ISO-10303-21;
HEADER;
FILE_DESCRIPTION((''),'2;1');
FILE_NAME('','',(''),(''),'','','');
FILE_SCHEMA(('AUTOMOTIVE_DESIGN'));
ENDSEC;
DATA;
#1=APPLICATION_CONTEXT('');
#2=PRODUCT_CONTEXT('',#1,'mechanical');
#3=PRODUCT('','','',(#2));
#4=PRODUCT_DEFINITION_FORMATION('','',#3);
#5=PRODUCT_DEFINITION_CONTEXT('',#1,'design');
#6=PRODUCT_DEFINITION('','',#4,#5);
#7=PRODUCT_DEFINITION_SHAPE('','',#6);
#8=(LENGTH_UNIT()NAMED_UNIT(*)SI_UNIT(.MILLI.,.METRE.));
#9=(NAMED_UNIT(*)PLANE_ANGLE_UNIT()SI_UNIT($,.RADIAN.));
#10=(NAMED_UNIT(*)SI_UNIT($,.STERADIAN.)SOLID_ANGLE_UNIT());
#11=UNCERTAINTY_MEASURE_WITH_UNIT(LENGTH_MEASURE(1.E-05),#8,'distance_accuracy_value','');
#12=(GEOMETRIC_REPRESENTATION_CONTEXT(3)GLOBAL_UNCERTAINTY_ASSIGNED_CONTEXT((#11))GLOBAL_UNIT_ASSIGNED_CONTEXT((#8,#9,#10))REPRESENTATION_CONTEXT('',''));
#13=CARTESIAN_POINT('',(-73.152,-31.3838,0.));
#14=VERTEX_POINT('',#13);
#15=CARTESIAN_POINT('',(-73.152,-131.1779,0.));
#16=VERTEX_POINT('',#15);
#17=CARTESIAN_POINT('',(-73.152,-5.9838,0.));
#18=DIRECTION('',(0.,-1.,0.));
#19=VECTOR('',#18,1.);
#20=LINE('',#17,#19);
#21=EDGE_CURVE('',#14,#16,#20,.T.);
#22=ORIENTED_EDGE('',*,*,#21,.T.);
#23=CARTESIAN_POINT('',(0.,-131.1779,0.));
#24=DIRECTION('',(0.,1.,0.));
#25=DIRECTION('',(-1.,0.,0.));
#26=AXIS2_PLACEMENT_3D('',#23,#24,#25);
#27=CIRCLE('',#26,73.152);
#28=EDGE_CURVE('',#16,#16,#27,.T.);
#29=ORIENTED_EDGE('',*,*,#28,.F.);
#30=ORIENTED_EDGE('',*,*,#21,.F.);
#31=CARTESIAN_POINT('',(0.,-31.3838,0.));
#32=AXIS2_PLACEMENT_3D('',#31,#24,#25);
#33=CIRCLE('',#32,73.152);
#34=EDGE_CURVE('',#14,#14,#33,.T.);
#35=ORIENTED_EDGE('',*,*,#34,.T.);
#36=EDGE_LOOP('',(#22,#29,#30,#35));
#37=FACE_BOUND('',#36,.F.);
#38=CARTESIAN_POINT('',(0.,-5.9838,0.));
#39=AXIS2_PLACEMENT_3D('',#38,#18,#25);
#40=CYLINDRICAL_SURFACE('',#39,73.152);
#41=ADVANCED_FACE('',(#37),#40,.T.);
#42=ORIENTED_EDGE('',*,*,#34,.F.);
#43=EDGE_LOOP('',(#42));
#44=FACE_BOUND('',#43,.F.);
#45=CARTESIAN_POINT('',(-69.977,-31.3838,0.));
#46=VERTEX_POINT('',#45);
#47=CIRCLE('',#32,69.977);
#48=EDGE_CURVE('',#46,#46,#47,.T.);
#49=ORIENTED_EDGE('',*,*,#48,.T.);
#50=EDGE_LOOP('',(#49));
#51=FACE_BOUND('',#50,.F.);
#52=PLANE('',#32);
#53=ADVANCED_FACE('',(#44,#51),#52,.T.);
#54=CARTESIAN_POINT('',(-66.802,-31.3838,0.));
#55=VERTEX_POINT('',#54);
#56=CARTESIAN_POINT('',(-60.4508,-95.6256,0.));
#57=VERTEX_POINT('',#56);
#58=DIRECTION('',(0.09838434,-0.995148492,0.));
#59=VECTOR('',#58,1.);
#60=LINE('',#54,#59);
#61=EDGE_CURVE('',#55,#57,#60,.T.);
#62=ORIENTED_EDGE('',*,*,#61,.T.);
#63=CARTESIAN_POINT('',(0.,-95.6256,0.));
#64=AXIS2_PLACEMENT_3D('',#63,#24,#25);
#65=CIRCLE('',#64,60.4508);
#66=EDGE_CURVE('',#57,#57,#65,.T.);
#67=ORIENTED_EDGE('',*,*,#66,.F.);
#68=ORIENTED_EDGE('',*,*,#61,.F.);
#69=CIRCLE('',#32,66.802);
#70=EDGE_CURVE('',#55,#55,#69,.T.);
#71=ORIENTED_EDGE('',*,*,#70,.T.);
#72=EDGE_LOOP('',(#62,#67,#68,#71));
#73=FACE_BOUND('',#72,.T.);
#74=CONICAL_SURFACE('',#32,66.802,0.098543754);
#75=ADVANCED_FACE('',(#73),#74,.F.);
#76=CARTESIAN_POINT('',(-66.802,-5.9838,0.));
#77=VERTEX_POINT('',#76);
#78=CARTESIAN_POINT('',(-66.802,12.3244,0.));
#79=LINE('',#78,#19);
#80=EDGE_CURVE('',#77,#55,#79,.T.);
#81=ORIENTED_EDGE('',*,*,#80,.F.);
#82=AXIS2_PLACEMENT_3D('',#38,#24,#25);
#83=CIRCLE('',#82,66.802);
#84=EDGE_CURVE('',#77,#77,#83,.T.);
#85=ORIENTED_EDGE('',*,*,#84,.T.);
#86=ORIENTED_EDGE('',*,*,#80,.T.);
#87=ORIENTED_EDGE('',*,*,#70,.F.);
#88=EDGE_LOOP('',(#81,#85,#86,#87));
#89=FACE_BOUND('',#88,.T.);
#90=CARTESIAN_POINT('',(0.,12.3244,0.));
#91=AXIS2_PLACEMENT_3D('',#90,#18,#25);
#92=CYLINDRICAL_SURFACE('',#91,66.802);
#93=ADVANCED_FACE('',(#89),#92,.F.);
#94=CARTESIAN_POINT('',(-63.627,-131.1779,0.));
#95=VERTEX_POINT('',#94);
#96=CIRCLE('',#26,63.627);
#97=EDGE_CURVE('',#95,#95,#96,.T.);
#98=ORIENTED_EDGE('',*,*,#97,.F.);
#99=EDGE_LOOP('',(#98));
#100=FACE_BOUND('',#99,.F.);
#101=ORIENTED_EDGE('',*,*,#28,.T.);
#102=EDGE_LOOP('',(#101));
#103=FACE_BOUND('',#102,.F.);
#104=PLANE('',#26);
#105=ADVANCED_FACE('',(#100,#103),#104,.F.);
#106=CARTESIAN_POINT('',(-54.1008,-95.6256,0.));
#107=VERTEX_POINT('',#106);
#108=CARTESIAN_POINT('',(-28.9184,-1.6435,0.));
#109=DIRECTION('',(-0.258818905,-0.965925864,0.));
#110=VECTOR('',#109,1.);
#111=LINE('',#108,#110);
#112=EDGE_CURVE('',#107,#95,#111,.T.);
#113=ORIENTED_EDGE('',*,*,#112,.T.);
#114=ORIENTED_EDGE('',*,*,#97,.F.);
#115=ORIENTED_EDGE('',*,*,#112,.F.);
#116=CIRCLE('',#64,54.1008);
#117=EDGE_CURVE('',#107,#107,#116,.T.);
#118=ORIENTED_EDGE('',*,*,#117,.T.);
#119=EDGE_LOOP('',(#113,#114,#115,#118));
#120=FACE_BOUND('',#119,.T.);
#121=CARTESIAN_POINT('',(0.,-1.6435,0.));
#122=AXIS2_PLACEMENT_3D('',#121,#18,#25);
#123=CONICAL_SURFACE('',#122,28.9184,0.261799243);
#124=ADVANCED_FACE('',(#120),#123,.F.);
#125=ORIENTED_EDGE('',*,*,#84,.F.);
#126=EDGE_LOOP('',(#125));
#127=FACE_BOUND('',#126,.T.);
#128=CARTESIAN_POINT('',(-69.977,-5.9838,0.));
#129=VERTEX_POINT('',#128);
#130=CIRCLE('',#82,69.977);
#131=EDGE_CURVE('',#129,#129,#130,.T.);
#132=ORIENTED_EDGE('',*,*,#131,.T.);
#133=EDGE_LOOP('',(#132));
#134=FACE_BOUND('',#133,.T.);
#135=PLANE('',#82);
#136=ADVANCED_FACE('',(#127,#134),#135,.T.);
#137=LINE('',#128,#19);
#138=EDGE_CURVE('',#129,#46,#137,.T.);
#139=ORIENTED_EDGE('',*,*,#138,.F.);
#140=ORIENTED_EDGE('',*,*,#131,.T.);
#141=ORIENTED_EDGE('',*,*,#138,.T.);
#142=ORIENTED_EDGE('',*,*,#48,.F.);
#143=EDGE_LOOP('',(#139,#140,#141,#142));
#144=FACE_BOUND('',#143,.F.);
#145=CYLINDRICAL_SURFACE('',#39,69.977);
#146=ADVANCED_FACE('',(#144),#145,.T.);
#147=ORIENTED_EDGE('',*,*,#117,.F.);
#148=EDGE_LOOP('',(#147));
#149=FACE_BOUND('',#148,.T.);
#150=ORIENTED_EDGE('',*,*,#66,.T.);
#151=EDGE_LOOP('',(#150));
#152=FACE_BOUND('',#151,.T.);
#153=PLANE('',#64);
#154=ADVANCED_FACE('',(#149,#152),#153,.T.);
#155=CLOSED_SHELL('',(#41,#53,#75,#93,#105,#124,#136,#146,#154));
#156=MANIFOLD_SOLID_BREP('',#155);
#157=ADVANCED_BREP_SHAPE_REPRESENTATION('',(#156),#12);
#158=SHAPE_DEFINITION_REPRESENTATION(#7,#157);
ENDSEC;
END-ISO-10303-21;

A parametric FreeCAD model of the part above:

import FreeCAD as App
import Part
import Sketcher
Q = App.Units.Quantity

doc = App.newDocument("Part")
body = doc.addObject("PartDesign::Body", "Body")

# Sketch on XY plane
sketch1 = body.newObject("Sketcher::SketchObject", "Sketch")
sketch1.AttachmentSupport = (doc.getObject("XY_Plane"), [""])
sketch1.MapMode = "FlatFace"
sketch1.addGeometry([
    Part.LineSegment(App.Vector(-63.6, -131.2, 0), App.Vector(-54.1, -95.6, 0)),  # 0
    Part.LineSegment(App.Vector(-54.1, -95.6, 0), App.Vector(-60.5, -95.6, 0)),  # 1
    Part.LineSegment(App.Vector(-60.5, -95.6, 0), App.Vector(-66.8, -31.4, 0)),  # 2
    Part.LineSegment(App.Vector(-66.8, -31.4, 0), App.Vector(-66.8, -6, 0)),  # 3
    Part.LineSegment(App.Vector(-66.8, -6, 0), App.Vector(-70, -6, 0)),  # 4
    Part.LineSegment(App.Vector(-70, -6, 0), App.Vector(-70, -31.4, 0)),  # 5
    Part.LineSegment(App.Vector(-70, -31.4, 0), App.Vector(-73.2, -31.4, 0)),  # 6
    Part.LineSegment(App.Vector(-73.2, -31.4, 0), App.Vector(-73.2, -131.2, 0)),  # 7
    Part.LineSegment(App.Vector(-73.2, -131.2, 0), App.Vector(-63.6, -131.2, 0)),  # 8
], False)
sketch1.addConstraint([
    Sketcher.Constraint("Coincident", 0, 2, 1, 1),
    Sketcher.Constraint("Coincident", 1, 2, 2, 1),
    Sketcher.Constraint("Coincident", 2, 2, 3, 1),
    Sketcher.Constraint("Coincident", 3, 2, 4, 1),
    Sketcher.Constraint("Coincident", 4, 2, 5, 1),
    Sketcher.Constraint("Coincident", 5, 2, 6, 1),
    Sketcher.Constraint("Coincident", 6, 2, 7, 1),
    Sketcher.Constraint("Coincident", 7, 2, 8, 1),
    Sketcher.Constraint("Coincident", 8, 2, 0, 1),
    Sketcher.Constraint("Horizontal", 1),
    Sketcher.Constraint("Vertical", 3),
    Sketcher.Constraint("Horizontal", 4),
    Sketcher.Constraint("Vertical", 5),
    Sketcher.Constraint("Horizontal", 6),
    Sketcher.Constraint("Vertical", 7),
    Sketcher.Constraint("Horizontal", 8),
    Sketcher.Constraint("Horizontal", 2, 2, 5, 2),
    Sketcher.Constraint("Equal", 4, 6),
    Sketcher.Constraint("DistanceY", 3, 1, 3, 2, Q("1 in")),
    Sketcher.Constraint("DistanceX", 1, 2, 1, 1, Q("0.25 in")),
    Sketcher.Constraint("DistanceX", 4, 2, 4, 1, Q("0.125 in")),
    Sketcher.Constraint("DistanceX", 8, 1, 8, 2, Q("0.375 in")),
    Sketcher.Constraint("Angle", 0, Q("75 deg")),
    Sketcher.Constraint("DistanceX", 2, 2, -1, 1, Q("2.63 in")),
    Sketcher.Constraint("DistanceY", 7, 2, 7, 1, Q("3.9289 in")),
    Sketcher.Constraint("DistanceY", 1, 2, 2, 2, Q("2.5292 in")),
    Sketcher.Constraint("DistanceY", 0, 2, -1, 1, Q("95.6256 mm")),
])
revolution = body.newObject("PartDesign::Revolution", "Revolution")
revolution.Profile = sketch1
revolution.ReferenceAxis = (sketch1, ["V_Axis"])
revolution.Angle = 360

doc.recompute()
